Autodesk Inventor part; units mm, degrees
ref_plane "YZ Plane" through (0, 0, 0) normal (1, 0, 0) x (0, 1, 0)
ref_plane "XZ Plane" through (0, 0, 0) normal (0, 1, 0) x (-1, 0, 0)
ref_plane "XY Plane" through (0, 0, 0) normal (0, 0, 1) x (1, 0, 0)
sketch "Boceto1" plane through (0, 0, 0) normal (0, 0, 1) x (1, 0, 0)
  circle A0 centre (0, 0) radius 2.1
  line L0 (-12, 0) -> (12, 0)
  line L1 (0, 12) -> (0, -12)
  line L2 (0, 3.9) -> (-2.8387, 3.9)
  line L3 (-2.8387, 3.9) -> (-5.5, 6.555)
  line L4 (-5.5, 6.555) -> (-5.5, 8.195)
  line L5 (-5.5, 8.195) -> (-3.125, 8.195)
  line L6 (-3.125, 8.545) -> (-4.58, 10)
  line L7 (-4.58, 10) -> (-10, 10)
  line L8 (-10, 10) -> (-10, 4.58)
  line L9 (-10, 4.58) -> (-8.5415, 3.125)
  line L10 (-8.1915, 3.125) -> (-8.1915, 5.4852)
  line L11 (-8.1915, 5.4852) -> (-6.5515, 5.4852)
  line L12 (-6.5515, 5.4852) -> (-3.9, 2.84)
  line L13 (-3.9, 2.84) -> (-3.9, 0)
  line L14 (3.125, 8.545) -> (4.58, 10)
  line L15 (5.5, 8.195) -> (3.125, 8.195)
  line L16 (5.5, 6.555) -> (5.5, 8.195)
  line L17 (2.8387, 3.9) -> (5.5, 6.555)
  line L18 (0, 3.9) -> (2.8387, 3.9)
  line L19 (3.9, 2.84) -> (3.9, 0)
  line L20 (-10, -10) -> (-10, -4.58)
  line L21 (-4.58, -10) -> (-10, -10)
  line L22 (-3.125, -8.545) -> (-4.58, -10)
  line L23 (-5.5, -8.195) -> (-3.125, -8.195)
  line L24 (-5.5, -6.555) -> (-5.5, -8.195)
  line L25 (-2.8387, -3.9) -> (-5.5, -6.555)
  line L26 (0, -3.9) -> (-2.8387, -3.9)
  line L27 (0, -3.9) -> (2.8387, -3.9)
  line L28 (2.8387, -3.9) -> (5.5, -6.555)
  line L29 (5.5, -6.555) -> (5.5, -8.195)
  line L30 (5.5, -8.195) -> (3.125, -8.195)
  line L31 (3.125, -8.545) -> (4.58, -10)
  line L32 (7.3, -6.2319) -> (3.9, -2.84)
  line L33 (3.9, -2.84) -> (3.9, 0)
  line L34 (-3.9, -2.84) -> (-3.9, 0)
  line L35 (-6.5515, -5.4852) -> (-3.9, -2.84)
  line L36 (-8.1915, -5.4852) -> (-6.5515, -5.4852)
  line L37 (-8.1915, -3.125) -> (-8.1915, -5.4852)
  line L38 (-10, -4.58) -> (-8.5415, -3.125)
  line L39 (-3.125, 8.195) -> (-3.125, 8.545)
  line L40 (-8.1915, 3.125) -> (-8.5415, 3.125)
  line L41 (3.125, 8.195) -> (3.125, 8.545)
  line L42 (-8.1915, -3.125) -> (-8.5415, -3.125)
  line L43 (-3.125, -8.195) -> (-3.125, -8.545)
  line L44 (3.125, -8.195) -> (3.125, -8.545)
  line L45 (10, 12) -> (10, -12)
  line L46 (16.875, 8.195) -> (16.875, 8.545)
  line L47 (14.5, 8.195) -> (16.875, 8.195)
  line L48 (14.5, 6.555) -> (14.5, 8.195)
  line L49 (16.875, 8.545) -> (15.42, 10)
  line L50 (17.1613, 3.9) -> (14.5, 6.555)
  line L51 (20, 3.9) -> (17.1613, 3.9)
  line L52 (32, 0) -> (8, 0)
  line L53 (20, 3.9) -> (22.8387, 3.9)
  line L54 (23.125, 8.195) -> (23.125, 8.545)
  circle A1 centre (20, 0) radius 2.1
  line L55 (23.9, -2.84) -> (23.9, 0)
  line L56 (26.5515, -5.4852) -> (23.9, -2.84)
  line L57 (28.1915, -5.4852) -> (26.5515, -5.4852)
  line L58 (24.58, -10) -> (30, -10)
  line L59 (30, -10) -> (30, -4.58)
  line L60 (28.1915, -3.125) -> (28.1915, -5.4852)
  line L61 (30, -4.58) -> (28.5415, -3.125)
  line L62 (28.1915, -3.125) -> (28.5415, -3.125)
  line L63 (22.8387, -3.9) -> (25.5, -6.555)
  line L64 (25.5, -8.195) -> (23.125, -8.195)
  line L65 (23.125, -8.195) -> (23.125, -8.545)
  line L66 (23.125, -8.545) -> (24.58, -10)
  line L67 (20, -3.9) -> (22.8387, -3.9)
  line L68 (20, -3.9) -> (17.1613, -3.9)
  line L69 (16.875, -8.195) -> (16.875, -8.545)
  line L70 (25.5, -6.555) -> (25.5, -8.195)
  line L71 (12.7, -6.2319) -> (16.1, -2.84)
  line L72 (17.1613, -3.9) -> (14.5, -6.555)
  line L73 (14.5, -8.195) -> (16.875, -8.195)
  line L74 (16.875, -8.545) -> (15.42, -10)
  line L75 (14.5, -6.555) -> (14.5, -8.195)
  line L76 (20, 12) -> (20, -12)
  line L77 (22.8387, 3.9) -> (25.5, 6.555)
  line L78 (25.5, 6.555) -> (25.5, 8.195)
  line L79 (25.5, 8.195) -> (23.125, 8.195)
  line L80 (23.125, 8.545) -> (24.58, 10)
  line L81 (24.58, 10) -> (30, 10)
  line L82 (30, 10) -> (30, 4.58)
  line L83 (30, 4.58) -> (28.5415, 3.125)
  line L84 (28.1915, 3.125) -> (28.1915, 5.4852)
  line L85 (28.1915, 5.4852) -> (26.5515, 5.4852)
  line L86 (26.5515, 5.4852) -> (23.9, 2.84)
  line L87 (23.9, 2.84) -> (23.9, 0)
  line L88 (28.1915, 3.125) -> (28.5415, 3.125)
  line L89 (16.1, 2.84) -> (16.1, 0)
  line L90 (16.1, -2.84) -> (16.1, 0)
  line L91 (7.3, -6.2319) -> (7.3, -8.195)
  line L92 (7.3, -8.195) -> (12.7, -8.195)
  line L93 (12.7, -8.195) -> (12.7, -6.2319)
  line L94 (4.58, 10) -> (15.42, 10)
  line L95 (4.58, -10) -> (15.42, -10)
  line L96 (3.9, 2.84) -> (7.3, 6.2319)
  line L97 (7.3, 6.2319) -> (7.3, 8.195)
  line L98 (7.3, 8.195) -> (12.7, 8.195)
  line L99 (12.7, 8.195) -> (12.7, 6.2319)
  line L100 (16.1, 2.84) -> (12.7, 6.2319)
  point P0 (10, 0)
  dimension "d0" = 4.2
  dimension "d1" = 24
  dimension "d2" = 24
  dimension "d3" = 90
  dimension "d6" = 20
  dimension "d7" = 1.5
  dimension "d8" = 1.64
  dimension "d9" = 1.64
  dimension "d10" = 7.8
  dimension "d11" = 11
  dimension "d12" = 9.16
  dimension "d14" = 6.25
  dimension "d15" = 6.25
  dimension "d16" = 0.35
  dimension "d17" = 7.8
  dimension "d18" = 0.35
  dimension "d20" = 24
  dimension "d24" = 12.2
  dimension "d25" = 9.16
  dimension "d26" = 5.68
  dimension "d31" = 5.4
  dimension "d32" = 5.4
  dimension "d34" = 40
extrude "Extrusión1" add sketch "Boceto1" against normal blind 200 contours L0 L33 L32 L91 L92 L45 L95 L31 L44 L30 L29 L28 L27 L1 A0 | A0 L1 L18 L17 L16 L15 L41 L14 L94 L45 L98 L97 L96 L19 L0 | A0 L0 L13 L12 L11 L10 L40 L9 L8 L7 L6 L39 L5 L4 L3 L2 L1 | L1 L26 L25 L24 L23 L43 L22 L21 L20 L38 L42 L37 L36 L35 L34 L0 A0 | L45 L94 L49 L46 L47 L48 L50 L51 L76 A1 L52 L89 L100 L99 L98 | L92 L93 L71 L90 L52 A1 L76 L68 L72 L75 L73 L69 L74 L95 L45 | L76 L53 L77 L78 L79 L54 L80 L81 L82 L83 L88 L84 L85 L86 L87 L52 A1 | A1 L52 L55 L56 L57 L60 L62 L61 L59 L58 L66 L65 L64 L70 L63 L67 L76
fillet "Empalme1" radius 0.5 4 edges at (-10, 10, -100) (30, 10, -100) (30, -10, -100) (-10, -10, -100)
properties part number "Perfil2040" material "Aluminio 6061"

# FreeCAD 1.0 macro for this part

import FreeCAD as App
import Part
import Sketcher

V = App.Vector
Q = App.Units.Quantity


def edges_at(feature, points):
    """Names of the edges that pass closest to the given points."""
    edges = feature.Shape.Edges
    near = lambda p: min(range(len(edges)), key=lambda i: edges[i].distToShape(Part.Vertex(*p))[0])
    return sorted({f"Edge{near(p) + 1}" for p in points})


def add_polygon(sketch, points):
    """Adds a closed chain of lines whose ends are joined by coincident constraints."""
    first, n = sketch.GeometryCount, len(points)
    for a, b in zip(points, points[1:] + points[:1]):
        sketch.addGeometry(Part.LineSegment(App.Vector(*a, 0), App.Vector(*b, 0)), False)
    for i in range(n):
        sketch.addConstraint(Sketcher.Constraint("Coincident", first + i, 2, first + (i + 1) % n, 1))

doc = App.newDocument("Part")
body = doc.addObject("PartDesign::Body", "Body")

# Sketch on XY plane
sketch1 = doc.addObject("Sketcher::SketchObject", "Sketch")
body.addObject(sketch1)
sketch1.AttachmentSupport = (doc.XY_Plane, [""])
sketch1.MapMode = "FlatFace"
add_polygon(sketch1, [(4.58, -10), (15.42, -10), (16.875, -8.545), (16.875, -8.195), (14.5, -8.195), (14.5, -6.555), (17.1613, -3.9), (22.8387, -3.9), (25.5, -6.555), (25.5, -8.195), (23.125, -8.195), (23.125, -8.545), (24.58, -10), (30, -10), (30, -4.58), (28.5415, -3.125), (28.1915, -3.125), (28.1915, -5.4852), (26.5515, -5.4852), (23.9, -2.84), (23.9, 2.84), (26.5515, 5.4852), (28.1915, 5.4852), (28.1915, 3.125), (28.5415, 3.125), (30, 4.58), (30, 10), (24.58, 10), (23.125, 8.545), (23.125, 8.195), (25.5, 8.195), (25.5, 6.555), (22.8387, 3.9), (17.1613, 3.9), (14.5, 6.555), (14.5, 8.195), (16.875, 8.195), (16.875, 8.545), (15.42, 10), (4.58, 10), (3.125, 8.545), (3.125, 8.195), (5.5, 8.195), (5.5, 6.555), (2.8387, 3.9), (-2.8387, 3.9), (-5.5, 6.555), (-5.5, 8.195), (-3.125, 8.195), (-3.125, 8.545), (-4.58, 10), (-10, 10), (-10, 4.58), (-8.5415, 3.125), (-8.1915, 3.125), (-8.1915, 5.4852), (-6.5515, 5.4852), (-3.9, 2.84), (-3.9, -2.84), (-6.5515, -5.4852), (-8.1915, -5.4852), (-8.1915, -3.125), (-8.5415, -3.125), (-10, -4.58), (-10, -10), (-4.58, -10), (-3.125, -8.545), (-3.125, -8.195), (-5.5, -8.195), (-5.5, -6.555), (-2.8387, -3.9), (2.8387, -3.9), (5.5, -6.555), (5.5, -8.195), (3.125, -8.195), (3.125, -8.545)])  # lines 0-75
add_polygon(sketch1, [(3.9, -2.84), (3.9, 2.84), (7.3, 6.2319), (7.3, 8.195), (12.7, 8.195), (12.7, 6.2319), (16.1, 2.84), (16.1, -2.84), (12.7, -6.2319), (12.7, -8.195), (7.3, -8.195), (7.3, -6.2319)])  # lines 76-87
sketch1.addGeometry(Part.Circle(V(0, 0, 0), V(0, 0, 1), 2.1), False)  # 88
sketch1.addGeometry(Part.Circle(V(20, 0, 0), V(0, 0, 1), 2.1), False)  # 89
sketch1.addConstraint([
    Sketcher.Constraint("Horizontal", 0),
    Sketcher.Constraint("Vertical", 2),
    Sketcher.Constraint("Horizontal", 3),
    Sketcher.Constraint("Vertical", 4),
    Sketcher.Constraint("Horizontal", 6),
    Sketcher.Constraint("Vertical", 8),
    Sketcher.Constraint("Horizontal", 9),
    Sketcher.Constraint("Vertical", 10),
    Sketcher.Constraint("Horizontal", 12),
    Sketcher.Constraint("Vertical", 13),
    Sketcher.Constraint("Horizontal", 15),
    Sketcher.Constraint("Vertical", 16),
    Sketcher.Constraint("Horizontal", 17),
    Sketcher.Constraint("Vertical", 19),
    Sketcher.Constraint("Horizontal", 21),
    Sketcher.Constraint("Vertical", 22),
    Sketcher.Constraint("Horizontal", 23),
    Sketcher.Constraint("Vertical", 25),
    Sketcher.Constraint("Horizontal", 26),
    Sketcher.Constraint("Vertical", 28),
    Sketcher.Constraint("Horizontal", 29),
    Sketcher.Constraint("Vertical", 30),
    Sketcher.Constraint("Horizontal", 32),
    Sketcher.Constraint("Vertical", 34),
    Sketcher.Constraint("Horizontal", 35),
    Sketcher.Constraint("Vertical", 36),
    Sketcher.Constraint("Horizontal", 38),
    Sketcher.Constraint("Vertical", 40),
    Sketcher.Constraint("Horizontal", 41),
    Sketcher.Constraint("Vertical", 42),
    Sketcher.Constraint("Horizontal", 44),
    Sketcher.Constraint("Vertical", 46),
    Sketcher.Constraint("Horizontal", 47),
    Sketcher.Constraint("Vertical", 48),
    Sketcher.Constraint("Horizontal", 50),
    Sketcher.Constraint("Vertical", 51),
    Sketcher.Constraint("Horizontal", 53),
    Sketcher.Constraint("Vertical", 54),
    Sketcher.Constraint("Horizontal", 55),
    Sketcher.Constraint("Vertical", 57),
    Sketcher.Constraint("Horizontal", 59),
    Sketcher.Constraint("Vertical", 60),
    Sketcher.Constraint("Horizontal", 61),
    Sketcher.Constraint("Vertical", 63),
    Sketcher.Constraint("Horizontal", 64),
    Sketcher.Constraint("Vertical", 66),
    Sketcher.Constraint("Horizontal", 67),
    Sketcher.Constraint("Vertical", 68),
    Sketcher.Constraint("Horizontal", 70),
    Sketcher.Constraint("Vertical", 72),
    Sketcher.Constraint("Horizontal", 73),
    Sketcher.Constraint("Vertical", 74),
    Sketcher.Constraint("Vertical", 76),
    Sketcher.Constraint("Vertical", 78),
    Sketcher.Constraint("Horizontal", 79),
    Sketcher.Constraint("Vertical", 80),
    Sketcher.Constraint("Vertical", 82),
    Sketcher.Constraint("Vertical", 84),
    Sketcher.Constraint("Horizontal", 85),
    Sketcher.Constraint("Vertical", 86),
    Sketcher.Constraint("Coincident", 88, 3, -1, 1),
    Sketcher.Constraint("Equal", 88, 89),
    Sketcher.Constraint("Symmetric", 38, 2, 64, 2, -1, 1),
    Sketcher.Constraint("Symmetric", 39, 2, 65, 2, -1, 1),
    Sketcher.Constraint("Symmetric", 41, 2, 67, 2, -1, 1),
    Sketcher.Constraint("Symmetric", 43, 2, 69, 2, -1, 1),
    Sketcher.Constraint("Symmetric", 45, 2, 71, 2, -1, 1),
    Sketcher.Constraint("Symmetric", 47, 2, 73, 2, -1, 1),
    Sketcher.Constraint("Symmetric", 49, 2, 75, 2, -1, 1),
    Sketcher.Constraint("Symmetric", 57, 2, 76, 2, -1, 1),
    Sketcher.Constraint("Symmetric", 42, 2, 45, 2, -2),
    Sketcher.Constraint("Symmetric", 40, 2, 47, 2, -2),
    Sketcher.Constraint("Symmetric", 38, 2, 49, 2, -2),
    Sketcher.Constraint("Symmetric", 17, 2, 20, 2, -1),
    Sketcher.Constraint("Symmetric", 15, 2, 22, 2, -1),
    Sketcher.Constraint("Symmetric", 13, 2, 24, 2, -1),
    Sketcher.Constraint("Symmetric", 11, 2, 26, 2, -1),
    Sketcher.Constraint("Symmetric", 10, 2, 27, 2, -1),
    Sketcher.Constraint("Symmetric", 8, 2, 29, 2, -1),
    Sketcher.Constraint("Symmetric", 6, 2, 31, 2, -1),
    Sketcher.Constraint("Symmetric", 4, 2, 33, 2, -1),
    Sketcher.Constraint("Symmetric", 2, 2, 35, 2, -1),
    Sketcher.Constraint("Symmetric", 55, 2, 58, 2, -1),
    Sketcher.Constraint("Symmetric", 53, 2, 60, 2, -1),
    Sketcher.Constraint("Symmetric", 51, 2, 62, 2, -1),
    Sketcher.Constraint("Symmetric", 80, 2, 83, 2, -1),
    Sketcher.Constraint("Symmetric", 78, 2, 85, 2, -1),
    Sketcher.Constraint("PointOnObject", 89, 3, -1),
    Sketcher.Constraint("Perpendicular", 1, 11),
    Sketcher.Constraint("Parallel", 7, 14),
    Sketcher.Constraint("Parallel", 14, 18),
    Sketcher.Constraint("Parallel", 5, 20),
    Sketcher.Constraint("Parallel", 20, 24),
    Sketcher.Constraint("Perpendicular", 11, 27),
    Sketcher.Constraint("Parallel", 24, 31),
    Sketcher.Constraint("Parallel", 18, 33),
    Sketcher.Constraint("Perpendicular", 27, 37),
    Sketcher.Constraint("Perpendicular", 37, 39),
    Sketcher.Constraint("Parallel", 31, 43),
    Sketcher.Constraint("Parallel", 33, 45),
    Sketcher.Constraint("Perpendicular", 39, 49),
    Sketcher.Constraint("Parallel", 45, 52),
    Sketcher.Constraint("Parallel", 52, 56),
    Sketcher.Constraint("Parallel", 43, 58),
    Sketcher.Constraint("Parallel", 58, 62),
    Sketcher.Constraint("Parallel", 62, 69),
    Sketcher.Constraint("Parallel", 56, 71),
    Sketcher.Constraint("Perpendicular", 65, 75),
    Sketcher.Constraint("Parallel", 69, 77),
    Sketcher.Constraint("Parallel", 71, 81),
    Sketcher.Constraint("Parallel", 77, 83),
    Sketcher.Constraint("Parallel", 81, 87),
    Sketcher.Constraint("Horizontal", 4, 2, 7, 2),
    Sketcher.Constraint("Horizontal", 3, 2, 8, 2),
    Sketcher.Constraint("Horizontal", 1, 2, 10, 2),
    Sketcher.Constraint("Horizontal", 0, 2, 11, 2),
    Sketcher.Constraint("Horizontal", 30, 2, 33, 2),
    Sketcher.Constraint("Horizontal", 27, 2, 36, 2),
    Sketcher.Constraint("Horizontal", 36, 2, 39, 2),
    Sketcher.Constraint("Horizontal", 35, 2, 40, 2),
    Sketcher.Constraint("Horizontal", 33, 2, 42, 2),
    Sketcher.Constraint("Horizontal", 32, 2, 43, 2),
    Sketcher.Constraint("Horizontal", 24, 2, 51, 2),
    Sketcher.Constraint("Horizontal", 23, 2, 52, 2),
    Sketcher.Constraint("Horizontal", 21, 2, 54, 2),
    Sketcher.Constraint("Horizontal", 19, 2, 56, 2),
    Sketcher.Constraint("Horizontal", 47, 2, 78, 2),
    Sketcher.Constraint("Horizontal", 77, 2, 80, 2),
    Sketcher.Constraint("Horizontal", 76, 2, 81, 2),
    Sketcher.Constraint("Horizontal", 83, 2, 86, 2),
    Sketcher.Constraint("Equal", 3, 9),
    Sketcher.Constraint("Equal", 35, 41),
    Sketcher.Constraint("Equal", 32, 44),
    Sketcher.Constraint("Equal", 26, 50),
    Sketcher.Constraint("Equal", 23, 53),
    Sketcher.Constraint("Equal", 21, 55),
    Sketcher.Constraint("Equal", 61, 2),
    Sketcher.Constraint("Equal", 59, 4),
    Sketcher.Constraint("Equal", 64, 13),
    Sketcher.Constraint("Diameter", 88, Q("4.2 mm")),
    Sketcher.Constraint("DistanceX", 79, 1, 79, 2, Q("5.4 mm")),
    Sketcher.Constraint("DistanceX", -1, 1, 89, 3, Q("20 mm")),
    Sketcher.Constraint("DistanceX", 15, 2, 15, 1, Q("0.35 mm")),
    Sketcher.Constraint("DistanceX", 17, 2, 17, 1, Q("1.64 mm")),
    Sketcher.Constraint("DistanceY", 19, 1, 19, 2, Q("5.68 mm")),
    Sketcher.Constraint("DistanceY", 0, 2, -1, 1, Q("10 mm")),
    Sketcher.Constraint("DistanceX", -1, 1, 12, 2, Q("30 mm")),
    Sketcher.Constraint("DistanceX", 50, 2, -1, 1, Q("10 mm")),
    Sketcher.Constraint("DistanceX", 0, 1, 0, 2, Q("10.84 mm")),
    Sketcher.Constraint("DistanceX", -1, 1, 3, 2, Q("14.5 mm")),
    Sketcher.Constraint("DistanceY", 5, 2, -1, 1, Q("3.9 mm")),
    Sketcher.Constraint("DistanceX", -1, 1, 18, 2, Q("23.9 mm")),
    Sketcher.Constraint("DistanceX", -1, 1, 77, 2, Q("7.3 mm")),
    Sketcher.Constraint("Angle", 14, Q("135.0688 deg")),
    Sketcher.Constraint("DistanceX", 3, 2, 3, 1, Q("2.375 mm")),
    Sketcher.Constraint("DistanceY", 14, 2, -1, 1, Q("3.125 mm")),
])
pad1 = doc.addObject("PartDesign::Pad", "Pad")
body.addObject(pad1)
pad1.Profile = sketch1
pad1.Length = 200
pad1.Reversed = True
doc.recompute()

fillet = doc.addObject("PartDesign::Fillet", "Fillet")
body.addObject(fillet)
fillet.Base = (pad1, edges_at(pad1, [
    (-10, 10, -100),
    (30, 10, -100),
    (30, -10, -100),
    (-10, -10, -100),
]))
fillet.Radius = 0.5

doc.recompute()
